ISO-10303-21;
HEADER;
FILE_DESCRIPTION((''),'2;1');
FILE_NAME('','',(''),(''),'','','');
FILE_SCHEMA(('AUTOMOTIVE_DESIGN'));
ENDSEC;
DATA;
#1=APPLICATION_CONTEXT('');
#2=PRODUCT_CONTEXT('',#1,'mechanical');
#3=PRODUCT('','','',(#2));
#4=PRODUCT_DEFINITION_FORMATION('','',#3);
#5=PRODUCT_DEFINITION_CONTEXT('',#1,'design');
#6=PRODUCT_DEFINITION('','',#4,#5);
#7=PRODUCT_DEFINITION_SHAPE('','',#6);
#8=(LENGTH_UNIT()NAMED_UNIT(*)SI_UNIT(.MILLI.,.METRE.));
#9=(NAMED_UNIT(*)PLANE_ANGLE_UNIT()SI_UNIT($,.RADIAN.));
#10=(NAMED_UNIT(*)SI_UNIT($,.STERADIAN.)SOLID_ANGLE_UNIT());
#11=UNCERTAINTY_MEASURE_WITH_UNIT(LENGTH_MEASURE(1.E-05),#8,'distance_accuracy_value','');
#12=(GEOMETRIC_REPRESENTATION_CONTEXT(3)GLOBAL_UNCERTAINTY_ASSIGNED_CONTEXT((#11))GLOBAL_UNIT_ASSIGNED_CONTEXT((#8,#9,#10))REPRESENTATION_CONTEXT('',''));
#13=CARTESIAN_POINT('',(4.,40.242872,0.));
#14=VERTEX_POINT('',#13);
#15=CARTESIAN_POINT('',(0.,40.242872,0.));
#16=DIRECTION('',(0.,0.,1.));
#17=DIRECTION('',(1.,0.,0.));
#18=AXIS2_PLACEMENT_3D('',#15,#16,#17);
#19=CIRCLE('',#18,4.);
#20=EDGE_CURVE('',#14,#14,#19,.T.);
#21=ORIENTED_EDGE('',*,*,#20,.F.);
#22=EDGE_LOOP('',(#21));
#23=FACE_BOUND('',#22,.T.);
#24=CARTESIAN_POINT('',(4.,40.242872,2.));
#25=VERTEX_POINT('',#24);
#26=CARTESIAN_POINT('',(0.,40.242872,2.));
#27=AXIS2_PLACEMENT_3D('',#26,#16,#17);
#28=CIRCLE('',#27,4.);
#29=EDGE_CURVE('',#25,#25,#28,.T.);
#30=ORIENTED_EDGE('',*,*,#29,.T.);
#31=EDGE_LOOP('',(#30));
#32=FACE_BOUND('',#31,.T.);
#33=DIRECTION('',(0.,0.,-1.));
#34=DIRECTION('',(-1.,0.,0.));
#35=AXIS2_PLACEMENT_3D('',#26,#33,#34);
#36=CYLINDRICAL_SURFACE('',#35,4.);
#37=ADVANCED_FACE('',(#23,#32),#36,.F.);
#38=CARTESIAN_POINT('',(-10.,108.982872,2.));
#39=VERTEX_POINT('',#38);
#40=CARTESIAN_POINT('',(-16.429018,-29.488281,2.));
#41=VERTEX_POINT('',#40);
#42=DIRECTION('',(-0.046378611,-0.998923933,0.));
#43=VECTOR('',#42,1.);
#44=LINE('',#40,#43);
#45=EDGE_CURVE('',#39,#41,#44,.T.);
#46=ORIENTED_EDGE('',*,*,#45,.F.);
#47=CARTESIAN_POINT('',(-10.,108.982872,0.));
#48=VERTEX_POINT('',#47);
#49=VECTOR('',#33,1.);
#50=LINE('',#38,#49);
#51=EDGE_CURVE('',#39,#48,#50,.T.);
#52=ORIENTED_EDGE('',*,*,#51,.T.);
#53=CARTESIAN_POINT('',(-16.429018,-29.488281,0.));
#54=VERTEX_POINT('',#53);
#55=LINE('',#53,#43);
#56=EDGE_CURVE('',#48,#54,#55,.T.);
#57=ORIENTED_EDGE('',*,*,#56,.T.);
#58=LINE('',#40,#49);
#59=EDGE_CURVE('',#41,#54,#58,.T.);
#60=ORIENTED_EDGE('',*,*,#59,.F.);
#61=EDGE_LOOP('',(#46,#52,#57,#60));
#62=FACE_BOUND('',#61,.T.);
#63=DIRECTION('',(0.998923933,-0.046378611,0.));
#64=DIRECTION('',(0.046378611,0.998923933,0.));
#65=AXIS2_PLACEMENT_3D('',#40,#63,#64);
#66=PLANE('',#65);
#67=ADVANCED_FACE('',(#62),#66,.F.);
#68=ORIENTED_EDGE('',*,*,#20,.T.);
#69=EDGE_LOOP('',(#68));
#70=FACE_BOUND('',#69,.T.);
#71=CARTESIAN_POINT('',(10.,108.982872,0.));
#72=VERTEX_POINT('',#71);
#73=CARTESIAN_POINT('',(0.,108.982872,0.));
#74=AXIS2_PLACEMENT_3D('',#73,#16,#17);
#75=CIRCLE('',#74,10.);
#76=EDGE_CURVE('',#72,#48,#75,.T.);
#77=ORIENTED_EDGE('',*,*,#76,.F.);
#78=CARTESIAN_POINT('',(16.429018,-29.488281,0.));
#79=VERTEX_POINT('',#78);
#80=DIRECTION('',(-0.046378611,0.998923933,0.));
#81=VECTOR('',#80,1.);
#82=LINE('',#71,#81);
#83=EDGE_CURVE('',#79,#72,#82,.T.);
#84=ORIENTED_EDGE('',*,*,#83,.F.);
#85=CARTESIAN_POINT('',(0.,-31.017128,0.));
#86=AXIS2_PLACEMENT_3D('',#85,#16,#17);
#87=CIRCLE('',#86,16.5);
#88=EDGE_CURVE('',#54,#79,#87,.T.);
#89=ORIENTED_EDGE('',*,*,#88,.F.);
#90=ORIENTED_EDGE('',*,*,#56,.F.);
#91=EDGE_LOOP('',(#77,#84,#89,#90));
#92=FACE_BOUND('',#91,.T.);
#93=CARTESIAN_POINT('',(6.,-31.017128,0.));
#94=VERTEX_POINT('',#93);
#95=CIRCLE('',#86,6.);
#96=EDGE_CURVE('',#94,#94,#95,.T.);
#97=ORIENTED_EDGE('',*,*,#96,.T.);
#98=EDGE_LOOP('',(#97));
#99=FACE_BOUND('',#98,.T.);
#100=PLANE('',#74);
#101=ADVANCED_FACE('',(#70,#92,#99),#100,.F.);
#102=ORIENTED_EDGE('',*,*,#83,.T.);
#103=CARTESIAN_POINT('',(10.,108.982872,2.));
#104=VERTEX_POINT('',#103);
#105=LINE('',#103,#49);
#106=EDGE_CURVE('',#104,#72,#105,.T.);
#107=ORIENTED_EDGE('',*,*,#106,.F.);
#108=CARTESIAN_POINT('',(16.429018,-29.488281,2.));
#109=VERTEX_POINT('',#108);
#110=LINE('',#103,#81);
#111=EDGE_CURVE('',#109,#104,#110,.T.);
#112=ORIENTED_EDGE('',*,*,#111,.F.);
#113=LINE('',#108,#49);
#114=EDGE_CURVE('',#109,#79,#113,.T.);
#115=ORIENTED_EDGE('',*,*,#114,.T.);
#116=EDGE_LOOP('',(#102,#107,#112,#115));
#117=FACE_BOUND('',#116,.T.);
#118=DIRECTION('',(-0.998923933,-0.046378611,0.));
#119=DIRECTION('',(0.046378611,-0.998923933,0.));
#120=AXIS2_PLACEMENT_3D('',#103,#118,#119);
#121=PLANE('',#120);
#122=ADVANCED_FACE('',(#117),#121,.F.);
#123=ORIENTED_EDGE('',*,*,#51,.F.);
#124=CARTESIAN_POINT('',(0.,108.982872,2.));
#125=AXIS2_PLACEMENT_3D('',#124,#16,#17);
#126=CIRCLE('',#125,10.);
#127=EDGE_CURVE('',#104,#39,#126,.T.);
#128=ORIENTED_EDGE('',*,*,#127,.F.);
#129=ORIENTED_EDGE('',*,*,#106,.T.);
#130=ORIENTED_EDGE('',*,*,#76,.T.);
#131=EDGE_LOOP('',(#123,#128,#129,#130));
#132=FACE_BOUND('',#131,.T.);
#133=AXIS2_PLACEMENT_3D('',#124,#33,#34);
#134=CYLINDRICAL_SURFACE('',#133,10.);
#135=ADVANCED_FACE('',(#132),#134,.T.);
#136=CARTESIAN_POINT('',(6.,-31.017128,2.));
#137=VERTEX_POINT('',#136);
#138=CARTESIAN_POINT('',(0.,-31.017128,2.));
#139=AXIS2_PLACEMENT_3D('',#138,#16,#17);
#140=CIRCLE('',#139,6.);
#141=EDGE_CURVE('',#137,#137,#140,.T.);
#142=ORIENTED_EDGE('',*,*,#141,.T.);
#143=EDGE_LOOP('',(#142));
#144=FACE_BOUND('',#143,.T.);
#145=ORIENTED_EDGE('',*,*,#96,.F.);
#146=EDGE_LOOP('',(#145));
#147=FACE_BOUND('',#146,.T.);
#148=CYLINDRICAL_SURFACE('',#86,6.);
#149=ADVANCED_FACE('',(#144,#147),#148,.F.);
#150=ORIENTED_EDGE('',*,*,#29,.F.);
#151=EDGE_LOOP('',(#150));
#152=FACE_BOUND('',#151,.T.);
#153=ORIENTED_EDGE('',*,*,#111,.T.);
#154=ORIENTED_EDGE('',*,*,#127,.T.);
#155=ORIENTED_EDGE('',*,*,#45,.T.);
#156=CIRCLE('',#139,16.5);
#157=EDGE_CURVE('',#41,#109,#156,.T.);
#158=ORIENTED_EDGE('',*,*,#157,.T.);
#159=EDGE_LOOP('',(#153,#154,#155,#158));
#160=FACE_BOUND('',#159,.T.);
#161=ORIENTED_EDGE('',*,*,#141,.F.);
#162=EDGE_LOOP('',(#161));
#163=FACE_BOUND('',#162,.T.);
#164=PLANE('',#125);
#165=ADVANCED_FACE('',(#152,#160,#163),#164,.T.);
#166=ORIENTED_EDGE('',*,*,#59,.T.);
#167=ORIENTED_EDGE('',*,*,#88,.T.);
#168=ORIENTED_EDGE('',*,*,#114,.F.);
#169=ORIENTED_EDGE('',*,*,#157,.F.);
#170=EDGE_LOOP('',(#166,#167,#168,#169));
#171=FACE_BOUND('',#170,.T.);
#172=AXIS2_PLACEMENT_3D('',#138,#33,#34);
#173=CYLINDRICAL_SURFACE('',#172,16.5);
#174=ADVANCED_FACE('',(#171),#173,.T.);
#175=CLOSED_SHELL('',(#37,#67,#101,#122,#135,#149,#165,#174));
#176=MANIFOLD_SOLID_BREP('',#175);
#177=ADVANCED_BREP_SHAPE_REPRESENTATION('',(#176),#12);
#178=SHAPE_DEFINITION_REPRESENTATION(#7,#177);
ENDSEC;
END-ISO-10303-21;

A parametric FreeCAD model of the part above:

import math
import FreeCAD as App
import Part
import Sketcher

doc = App.newDocument("Part")
params = doc.addObject("Spreadsheet::Sheet", "Params")
for row, (alias, value) in enumerate([
    ("sketch1_diameter", "8 mm"),
    ("sketch1_radius", "10 mm"),
    ("sketch1_radius2", "16.5 mm"),
    ("pad1_length", "2 mm"),
    ("sketch2_diameter", "12 mm"),
], start=1):
    params.set(f"A{row}", alias)
    params.set(f"B{row}", "=" + value)
    params.setAlias(f"B{row}", alias)

body = doc.addObject("PartDesign::Body", "Body")

# Sketch on XY plane
sketch1 = body.newObject("Sketcher::SketchObject", "Sketch")
sketch1.AttachmentSupport = (doc.getObject("XY_Plane"), [""])
sketch1.MapMode = "FlatFace"
sketch1.addGeometry([
    Part.LineSegment(App.Vector(-10, 109, 0), App.Vector(-16.4, -29.5, 0)),  # 0
    Part.ArcOfCircle(Part.Circle(App.Vector(0, -31, 0), App.Vector(0, 0, 1), 16.5), math.radians(175), math.radians(365)),  # 1
    Part.LineSegment(App.Vector(16.4, -29.5, 0), App.Vector(10, 109, 0)),  # 2
    Part.ArcOfCircle(Part.Circle(App.Vector(0, 109, 0), App.Vector(0, 0, 1), 10), math.radians(0), math.radians(180)),  # 3
    Part.Circle(App.Vector(0, 40.2, 0), App.Vector(0, 0, 1), 4),  # 4
], False)
sketch1.addConstraint([
    Sketcher.Constraint("Coincident", 0, 2, 1, 1),
    Sketcher.Constraint("Coincident", 1, 2, 2, 1),
    Sketcher.Constraint("Coincident", 2, 2, 3, 1),
    Sketcher.Constraint("Coincident", 3, 2, 0, 1),
    Sketcher.Constraint("Symmetric", 0, 2, 1, 2, -2),
    Sketcher.Constraint("Symmetric", 2, 2, 3, 2, -2),
    Sketcher.Constraint("PointOnObject", 4, 3, -2),
    Sketcher.Constraint("Horizontal", 3, 3, 2, 2),
    Sketcher.Constraint("Diameter", 4, 8.0),
    Sketcher.Constraint("Radius", 3, 10.0),
    Sketcher.Constraint("Radius", 1, 16.5),
    Sketcher.Constraint("DistanceY", 1, 3, 3, 3, 140.0),
    Sketcher.Constraint("DistanceY", 4, 3, 3, 3, 68.74),
    Sketcher.Constraint("DistanceY", 0, 2, -1, 1, 29.488281),
    Sketcher.Constraint("Distance", 0, 138.620317),
])
sketch1.setExpression("Constraints[8]", "Params.sketch1_diameter")
sketch1.setExpression("Constraints[9]", "Params.sketch1_radius")
sketch1.setExpression("Constraints[10]", "Params.sketch1_radius2")
pad1 = body.newObject("PartDesign::Pad", "Pad")
pad1.Profile = sketch1
pad1.setExpression("Length", "Params.pad1_length")

# Sketch on XY plane
sketch2 = body.newObject("Sketcher::SketchObject", "Sketch001")
sketch2.AttachmentSupport = (doc.getObject("XY_Plane"), [""])
sketch2.MapMode = "FlatFace"
sketch2.AttachmentOffset = App.Placement(App.Vector(0, 0, 2), App.Rotation())
sketch2.addGeometry(Part.Circle(App.Vector(0, -31, 0), App.Vector(0, 0, 1), 6), False)
sketch2.addConstraint([
    Sketcher.Constraint("PointOnObject", 0, 3, -2),
    Sketcher.Constraint("Diameter", 0, 12.0),
    Sketcher.Constraint("DistanceY", 0, 3, -1, 1, 31.017128),
])
sketch2.setExpression("Constraints[1]", "Params.sketch2_diameter")
pocket1 = body.newObject("PartDesign::Pocket", "Pocket")
pocket1.Profile = sketch2
pocket1.Type = "ThroughAll"
pocket1.Midplane = True

doc.recompute()
